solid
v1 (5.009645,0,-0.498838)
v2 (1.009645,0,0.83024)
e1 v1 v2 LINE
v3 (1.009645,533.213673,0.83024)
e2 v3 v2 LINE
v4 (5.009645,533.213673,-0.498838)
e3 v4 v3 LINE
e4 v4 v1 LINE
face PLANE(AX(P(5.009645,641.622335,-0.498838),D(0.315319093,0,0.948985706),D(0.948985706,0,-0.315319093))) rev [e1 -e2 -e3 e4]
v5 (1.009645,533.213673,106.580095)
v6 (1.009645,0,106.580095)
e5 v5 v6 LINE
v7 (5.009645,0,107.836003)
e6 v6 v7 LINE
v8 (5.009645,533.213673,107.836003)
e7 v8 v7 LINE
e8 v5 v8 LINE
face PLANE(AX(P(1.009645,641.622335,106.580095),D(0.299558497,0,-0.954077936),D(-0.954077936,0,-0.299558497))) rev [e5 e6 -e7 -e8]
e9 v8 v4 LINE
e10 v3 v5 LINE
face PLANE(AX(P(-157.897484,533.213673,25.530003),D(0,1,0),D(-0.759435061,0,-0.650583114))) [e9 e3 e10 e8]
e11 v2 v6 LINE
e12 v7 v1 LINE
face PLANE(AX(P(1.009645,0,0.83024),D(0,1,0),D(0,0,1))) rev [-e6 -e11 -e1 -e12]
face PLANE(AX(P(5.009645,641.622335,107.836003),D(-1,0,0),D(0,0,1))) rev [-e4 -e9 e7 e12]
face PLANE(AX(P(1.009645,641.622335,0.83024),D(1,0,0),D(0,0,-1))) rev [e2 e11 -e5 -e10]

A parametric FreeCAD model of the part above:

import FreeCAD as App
import Part
import Sketcher

doc = App.newDocument("Part")
params = doc.addObject("Spreadsheet::Sheet", "Params")
for row, (alias, value) in enumerate([
    ("pad1_length", "533.213673 mm"),
], start=1):
    params.set(f"A{row}", alias)
    params.set(f"B{row}", "=" + value)
    params.setAlias(f"B{row}", alias)

body = doc.addObject("PartDesign::Body", "Body")

sketch1 = body.newObject("Sketcher::SketchObject", "Sketch")
sketch1.AttachmentSupport = (doc.getObject("XZ_Plane"), [""])
sketch1.MapMode = "FlatFace"
sketch1.addGeometry([
    Part.LineSegment(App.Vector(1.009645, 0.83024, 0), App.Vector(1.009645, 106.580095, 0)),
    Part.LineSegment(App.Vector(1.009645, 106.580095, 0), App.Vector(5.009645, 107.836003, 0)),
    Part.LineSegment(App.Vector(5.009645, 107.836003, 0), App.Vector(5.009645, -0.498838, 0)),
    Part.LineSegment(App.Vector(5.009645, -0.498838, 0), App.Vector(1.009645, 0.83024, 0)),
], False)
sketch1.addConstraint([
    Sketcher.Constraint("Coincident", 0, 2, 1, 1),
    Sketcher.Constraint("Coincident", 1, 2, 2, 1),
    Sketcher.Constraint("Coincident", 2, 2, 3, 1),
    Sketcher.Constraint("Coincident", 3, 2, 0, 1),
    Sketcher.Constraint("Vertical", 0),
    Sketcher.Constraint("Vertical", 2),
    Sketcher.Constraint("DistanceX", 0, 2, 1, 2, 4.0),
    Sketcher.Constraint("DistanceY", 2, 2, 2, 1, 108.334841),
    Sketcher.Constraint("Distance", 1, 4.19253),
    Sketcher.Constraint("DistanceY", 0, 1, 0, 2, 105.749855),
    Sketcher.Constraint("DistanceY", 2, 2, -1, 1, 0.498838),
    Sketcher.Constraint("DistanceX", -1, 1, 0, 2, 1.009645),
])
pad1 = body.newObject("PartDesign::Pad", "Pad")
pad1.Profile = sketch1
pad1.setExpression("Length", "Params.pad1_length")
pad1.Reversed = True

doc.recompute()
